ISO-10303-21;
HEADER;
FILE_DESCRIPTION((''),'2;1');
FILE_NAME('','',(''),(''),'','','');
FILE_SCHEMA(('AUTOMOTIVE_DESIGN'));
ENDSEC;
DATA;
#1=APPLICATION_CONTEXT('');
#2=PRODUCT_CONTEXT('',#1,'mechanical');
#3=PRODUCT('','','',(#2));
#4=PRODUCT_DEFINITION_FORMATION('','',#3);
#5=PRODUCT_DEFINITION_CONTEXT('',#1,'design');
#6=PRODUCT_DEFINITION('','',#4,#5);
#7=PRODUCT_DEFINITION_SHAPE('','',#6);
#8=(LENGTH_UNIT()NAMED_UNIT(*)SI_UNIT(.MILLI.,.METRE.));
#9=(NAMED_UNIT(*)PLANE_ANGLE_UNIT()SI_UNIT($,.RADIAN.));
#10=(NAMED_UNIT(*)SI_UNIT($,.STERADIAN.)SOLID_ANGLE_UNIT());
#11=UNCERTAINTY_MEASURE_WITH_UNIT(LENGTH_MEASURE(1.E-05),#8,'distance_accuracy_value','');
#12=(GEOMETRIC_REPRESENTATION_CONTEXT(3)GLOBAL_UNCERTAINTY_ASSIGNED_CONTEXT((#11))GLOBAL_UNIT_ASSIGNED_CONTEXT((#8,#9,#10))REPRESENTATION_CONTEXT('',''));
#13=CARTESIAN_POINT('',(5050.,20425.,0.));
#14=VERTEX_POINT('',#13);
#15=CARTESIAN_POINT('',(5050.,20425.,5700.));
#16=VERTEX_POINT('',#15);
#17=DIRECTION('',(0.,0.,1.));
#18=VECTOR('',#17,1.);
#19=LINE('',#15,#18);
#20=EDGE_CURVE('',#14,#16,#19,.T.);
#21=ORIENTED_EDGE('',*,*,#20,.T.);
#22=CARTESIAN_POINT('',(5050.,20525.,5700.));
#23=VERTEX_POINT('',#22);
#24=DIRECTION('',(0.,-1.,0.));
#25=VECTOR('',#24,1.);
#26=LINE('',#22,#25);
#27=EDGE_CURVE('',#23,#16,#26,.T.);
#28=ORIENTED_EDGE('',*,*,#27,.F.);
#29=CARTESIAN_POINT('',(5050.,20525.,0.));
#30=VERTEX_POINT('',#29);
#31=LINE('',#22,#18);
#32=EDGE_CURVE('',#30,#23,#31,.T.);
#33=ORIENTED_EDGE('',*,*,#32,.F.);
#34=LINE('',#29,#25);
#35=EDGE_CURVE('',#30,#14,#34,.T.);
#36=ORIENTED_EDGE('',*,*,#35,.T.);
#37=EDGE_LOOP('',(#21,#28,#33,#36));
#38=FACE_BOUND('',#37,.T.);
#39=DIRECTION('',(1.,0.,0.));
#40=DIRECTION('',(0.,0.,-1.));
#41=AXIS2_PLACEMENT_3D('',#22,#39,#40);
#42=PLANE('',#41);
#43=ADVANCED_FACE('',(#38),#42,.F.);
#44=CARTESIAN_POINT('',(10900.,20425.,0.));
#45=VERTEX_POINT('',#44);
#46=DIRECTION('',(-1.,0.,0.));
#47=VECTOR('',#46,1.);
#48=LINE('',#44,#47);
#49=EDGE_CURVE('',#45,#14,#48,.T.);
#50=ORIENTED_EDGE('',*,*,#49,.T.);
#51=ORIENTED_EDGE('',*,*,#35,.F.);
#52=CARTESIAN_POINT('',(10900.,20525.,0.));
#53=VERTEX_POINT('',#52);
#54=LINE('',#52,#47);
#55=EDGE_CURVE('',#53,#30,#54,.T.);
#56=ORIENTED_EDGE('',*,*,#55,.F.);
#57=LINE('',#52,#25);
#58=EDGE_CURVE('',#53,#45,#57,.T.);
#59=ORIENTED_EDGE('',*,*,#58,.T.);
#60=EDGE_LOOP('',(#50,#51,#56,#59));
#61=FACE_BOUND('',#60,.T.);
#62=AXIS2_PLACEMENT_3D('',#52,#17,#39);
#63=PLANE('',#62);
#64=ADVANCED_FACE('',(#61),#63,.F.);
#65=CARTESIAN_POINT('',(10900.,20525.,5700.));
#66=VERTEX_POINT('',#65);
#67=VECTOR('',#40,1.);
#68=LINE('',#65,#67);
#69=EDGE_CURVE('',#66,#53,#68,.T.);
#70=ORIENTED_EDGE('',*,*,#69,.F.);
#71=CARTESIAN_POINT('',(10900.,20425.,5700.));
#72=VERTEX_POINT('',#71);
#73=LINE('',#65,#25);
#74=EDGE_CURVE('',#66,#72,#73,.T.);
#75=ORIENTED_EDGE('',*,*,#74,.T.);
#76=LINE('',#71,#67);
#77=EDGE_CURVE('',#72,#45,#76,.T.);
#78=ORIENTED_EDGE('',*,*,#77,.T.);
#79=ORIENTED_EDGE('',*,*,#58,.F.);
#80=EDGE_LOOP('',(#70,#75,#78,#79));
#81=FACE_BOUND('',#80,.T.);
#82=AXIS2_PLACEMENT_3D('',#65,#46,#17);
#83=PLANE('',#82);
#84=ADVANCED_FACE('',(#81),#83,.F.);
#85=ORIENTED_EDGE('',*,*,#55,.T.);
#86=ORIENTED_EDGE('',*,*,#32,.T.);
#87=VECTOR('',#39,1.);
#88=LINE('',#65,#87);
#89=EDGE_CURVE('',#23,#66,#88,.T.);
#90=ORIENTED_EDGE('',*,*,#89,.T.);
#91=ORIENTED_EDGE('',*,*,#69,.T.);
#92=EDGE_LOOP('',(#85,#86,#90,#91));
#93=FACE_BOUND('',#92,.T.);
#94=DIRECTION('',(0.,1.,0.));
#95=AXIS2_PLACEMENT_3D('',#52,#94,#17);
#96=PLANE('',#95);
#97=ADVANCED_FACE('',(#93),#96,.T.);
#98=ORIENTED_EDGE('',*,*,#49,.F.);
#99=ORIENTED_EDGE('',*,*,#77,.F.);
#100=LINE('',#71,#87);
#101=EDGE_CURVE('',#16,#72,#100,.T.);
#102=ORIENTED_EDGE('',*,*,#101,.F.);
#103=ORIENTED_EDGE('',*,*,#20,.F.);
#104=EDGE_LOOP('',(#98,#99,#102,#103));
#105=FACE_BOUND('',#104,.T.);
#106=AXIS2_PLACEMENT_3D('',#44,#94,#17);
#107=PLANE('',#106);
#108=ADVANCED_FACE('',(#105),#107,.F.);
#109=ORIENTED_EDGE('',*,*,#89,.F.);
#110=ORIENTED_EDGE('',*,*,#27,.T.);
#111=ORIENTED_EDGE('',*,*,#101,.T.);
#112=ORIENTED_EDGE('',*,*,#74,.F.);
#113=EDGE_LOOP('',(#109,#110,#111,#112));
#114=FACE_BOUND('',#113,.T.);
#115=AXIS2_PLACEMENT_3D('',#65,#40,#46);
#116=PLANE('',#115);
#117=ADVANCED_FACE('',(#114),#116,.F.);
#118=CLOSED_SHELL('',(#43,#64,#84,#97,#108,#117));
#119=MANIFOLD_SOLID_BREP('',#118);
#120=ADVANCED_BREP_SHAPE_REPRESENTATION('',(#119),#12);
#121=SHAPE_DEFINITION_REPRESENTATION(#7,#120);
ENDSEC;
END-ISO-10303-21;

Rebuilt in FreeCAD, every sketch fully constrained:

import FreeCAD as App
import Part
import Sketcher

V = App.Vector


def add_polygon(sketch, points):
    """Adds a closed chain of lines whose ends are joined by coincident constraints."""
    first, n = sketch.GeometryCount, len(points)
    for a, b in zip(points, points[1:] + points[:1]):
        sketch.addGeometry(Part.LineSegment(App.Vector(*a, 0), App.Vector(*b, 0)), False)
    for i in range(n):
        sketch.addConstraint(Sketcher.Constraint("Coincident", first + i, 2, first + (i + 1) % n, 1))

doc = App.newDocument("Part")
body = doc.addObject("PartDesign::Body", "Body")

# Sketch on XZ plane
sketch1 = body.newObject("Sketcher::SketchObject", "Sketch")
sketch1.AttachmentSupport = (doc.getObject("XZ_Plane"), [""])
sketch1.MapMode = "FlatFace"
sketch1.AttachmentOffset = App.Placement(V(0, 0, -20425), App.Rotation())
add_polygon(sketch1, [(10900, 5700), (10900, 0), (5050, 0), (5050, 5700)])  # lines 0-3
sketch1.addConstraint(Sketcher.Constraint("Vertical", 0))
sketch1.addConstraint(Sketcher.Constraint("Horizontal", 1))
sketch1.addConstraint(Sketcher.Constraint("Vertical", 2))
sketch1.addConstraint(Sketcher.Constraint("Horizontal", 3))
sketch1.addConstraint(Sketcher.Constraint("PointOnObject", 0, 2, -1))
sketch1.addConstraint(Sketcher.Constraint("DistanceX", 1, 2, 1, 1, 5850.0))
sketch1.addConstraint(Sketcher.Constraint("DistanceY", 0, 2, 0, 1, 5700.0))
sketch1.addConstraint(Sketcher.Constraint("DistanceX", -1, 1, 0, 2, 10900.0))
pad1 = body.newObject("PartDesign::Pad", "Pad")
pad1.Profile = sketch1
pad1.Length = 100
pad1.Reversed = True

doc.recompute()
